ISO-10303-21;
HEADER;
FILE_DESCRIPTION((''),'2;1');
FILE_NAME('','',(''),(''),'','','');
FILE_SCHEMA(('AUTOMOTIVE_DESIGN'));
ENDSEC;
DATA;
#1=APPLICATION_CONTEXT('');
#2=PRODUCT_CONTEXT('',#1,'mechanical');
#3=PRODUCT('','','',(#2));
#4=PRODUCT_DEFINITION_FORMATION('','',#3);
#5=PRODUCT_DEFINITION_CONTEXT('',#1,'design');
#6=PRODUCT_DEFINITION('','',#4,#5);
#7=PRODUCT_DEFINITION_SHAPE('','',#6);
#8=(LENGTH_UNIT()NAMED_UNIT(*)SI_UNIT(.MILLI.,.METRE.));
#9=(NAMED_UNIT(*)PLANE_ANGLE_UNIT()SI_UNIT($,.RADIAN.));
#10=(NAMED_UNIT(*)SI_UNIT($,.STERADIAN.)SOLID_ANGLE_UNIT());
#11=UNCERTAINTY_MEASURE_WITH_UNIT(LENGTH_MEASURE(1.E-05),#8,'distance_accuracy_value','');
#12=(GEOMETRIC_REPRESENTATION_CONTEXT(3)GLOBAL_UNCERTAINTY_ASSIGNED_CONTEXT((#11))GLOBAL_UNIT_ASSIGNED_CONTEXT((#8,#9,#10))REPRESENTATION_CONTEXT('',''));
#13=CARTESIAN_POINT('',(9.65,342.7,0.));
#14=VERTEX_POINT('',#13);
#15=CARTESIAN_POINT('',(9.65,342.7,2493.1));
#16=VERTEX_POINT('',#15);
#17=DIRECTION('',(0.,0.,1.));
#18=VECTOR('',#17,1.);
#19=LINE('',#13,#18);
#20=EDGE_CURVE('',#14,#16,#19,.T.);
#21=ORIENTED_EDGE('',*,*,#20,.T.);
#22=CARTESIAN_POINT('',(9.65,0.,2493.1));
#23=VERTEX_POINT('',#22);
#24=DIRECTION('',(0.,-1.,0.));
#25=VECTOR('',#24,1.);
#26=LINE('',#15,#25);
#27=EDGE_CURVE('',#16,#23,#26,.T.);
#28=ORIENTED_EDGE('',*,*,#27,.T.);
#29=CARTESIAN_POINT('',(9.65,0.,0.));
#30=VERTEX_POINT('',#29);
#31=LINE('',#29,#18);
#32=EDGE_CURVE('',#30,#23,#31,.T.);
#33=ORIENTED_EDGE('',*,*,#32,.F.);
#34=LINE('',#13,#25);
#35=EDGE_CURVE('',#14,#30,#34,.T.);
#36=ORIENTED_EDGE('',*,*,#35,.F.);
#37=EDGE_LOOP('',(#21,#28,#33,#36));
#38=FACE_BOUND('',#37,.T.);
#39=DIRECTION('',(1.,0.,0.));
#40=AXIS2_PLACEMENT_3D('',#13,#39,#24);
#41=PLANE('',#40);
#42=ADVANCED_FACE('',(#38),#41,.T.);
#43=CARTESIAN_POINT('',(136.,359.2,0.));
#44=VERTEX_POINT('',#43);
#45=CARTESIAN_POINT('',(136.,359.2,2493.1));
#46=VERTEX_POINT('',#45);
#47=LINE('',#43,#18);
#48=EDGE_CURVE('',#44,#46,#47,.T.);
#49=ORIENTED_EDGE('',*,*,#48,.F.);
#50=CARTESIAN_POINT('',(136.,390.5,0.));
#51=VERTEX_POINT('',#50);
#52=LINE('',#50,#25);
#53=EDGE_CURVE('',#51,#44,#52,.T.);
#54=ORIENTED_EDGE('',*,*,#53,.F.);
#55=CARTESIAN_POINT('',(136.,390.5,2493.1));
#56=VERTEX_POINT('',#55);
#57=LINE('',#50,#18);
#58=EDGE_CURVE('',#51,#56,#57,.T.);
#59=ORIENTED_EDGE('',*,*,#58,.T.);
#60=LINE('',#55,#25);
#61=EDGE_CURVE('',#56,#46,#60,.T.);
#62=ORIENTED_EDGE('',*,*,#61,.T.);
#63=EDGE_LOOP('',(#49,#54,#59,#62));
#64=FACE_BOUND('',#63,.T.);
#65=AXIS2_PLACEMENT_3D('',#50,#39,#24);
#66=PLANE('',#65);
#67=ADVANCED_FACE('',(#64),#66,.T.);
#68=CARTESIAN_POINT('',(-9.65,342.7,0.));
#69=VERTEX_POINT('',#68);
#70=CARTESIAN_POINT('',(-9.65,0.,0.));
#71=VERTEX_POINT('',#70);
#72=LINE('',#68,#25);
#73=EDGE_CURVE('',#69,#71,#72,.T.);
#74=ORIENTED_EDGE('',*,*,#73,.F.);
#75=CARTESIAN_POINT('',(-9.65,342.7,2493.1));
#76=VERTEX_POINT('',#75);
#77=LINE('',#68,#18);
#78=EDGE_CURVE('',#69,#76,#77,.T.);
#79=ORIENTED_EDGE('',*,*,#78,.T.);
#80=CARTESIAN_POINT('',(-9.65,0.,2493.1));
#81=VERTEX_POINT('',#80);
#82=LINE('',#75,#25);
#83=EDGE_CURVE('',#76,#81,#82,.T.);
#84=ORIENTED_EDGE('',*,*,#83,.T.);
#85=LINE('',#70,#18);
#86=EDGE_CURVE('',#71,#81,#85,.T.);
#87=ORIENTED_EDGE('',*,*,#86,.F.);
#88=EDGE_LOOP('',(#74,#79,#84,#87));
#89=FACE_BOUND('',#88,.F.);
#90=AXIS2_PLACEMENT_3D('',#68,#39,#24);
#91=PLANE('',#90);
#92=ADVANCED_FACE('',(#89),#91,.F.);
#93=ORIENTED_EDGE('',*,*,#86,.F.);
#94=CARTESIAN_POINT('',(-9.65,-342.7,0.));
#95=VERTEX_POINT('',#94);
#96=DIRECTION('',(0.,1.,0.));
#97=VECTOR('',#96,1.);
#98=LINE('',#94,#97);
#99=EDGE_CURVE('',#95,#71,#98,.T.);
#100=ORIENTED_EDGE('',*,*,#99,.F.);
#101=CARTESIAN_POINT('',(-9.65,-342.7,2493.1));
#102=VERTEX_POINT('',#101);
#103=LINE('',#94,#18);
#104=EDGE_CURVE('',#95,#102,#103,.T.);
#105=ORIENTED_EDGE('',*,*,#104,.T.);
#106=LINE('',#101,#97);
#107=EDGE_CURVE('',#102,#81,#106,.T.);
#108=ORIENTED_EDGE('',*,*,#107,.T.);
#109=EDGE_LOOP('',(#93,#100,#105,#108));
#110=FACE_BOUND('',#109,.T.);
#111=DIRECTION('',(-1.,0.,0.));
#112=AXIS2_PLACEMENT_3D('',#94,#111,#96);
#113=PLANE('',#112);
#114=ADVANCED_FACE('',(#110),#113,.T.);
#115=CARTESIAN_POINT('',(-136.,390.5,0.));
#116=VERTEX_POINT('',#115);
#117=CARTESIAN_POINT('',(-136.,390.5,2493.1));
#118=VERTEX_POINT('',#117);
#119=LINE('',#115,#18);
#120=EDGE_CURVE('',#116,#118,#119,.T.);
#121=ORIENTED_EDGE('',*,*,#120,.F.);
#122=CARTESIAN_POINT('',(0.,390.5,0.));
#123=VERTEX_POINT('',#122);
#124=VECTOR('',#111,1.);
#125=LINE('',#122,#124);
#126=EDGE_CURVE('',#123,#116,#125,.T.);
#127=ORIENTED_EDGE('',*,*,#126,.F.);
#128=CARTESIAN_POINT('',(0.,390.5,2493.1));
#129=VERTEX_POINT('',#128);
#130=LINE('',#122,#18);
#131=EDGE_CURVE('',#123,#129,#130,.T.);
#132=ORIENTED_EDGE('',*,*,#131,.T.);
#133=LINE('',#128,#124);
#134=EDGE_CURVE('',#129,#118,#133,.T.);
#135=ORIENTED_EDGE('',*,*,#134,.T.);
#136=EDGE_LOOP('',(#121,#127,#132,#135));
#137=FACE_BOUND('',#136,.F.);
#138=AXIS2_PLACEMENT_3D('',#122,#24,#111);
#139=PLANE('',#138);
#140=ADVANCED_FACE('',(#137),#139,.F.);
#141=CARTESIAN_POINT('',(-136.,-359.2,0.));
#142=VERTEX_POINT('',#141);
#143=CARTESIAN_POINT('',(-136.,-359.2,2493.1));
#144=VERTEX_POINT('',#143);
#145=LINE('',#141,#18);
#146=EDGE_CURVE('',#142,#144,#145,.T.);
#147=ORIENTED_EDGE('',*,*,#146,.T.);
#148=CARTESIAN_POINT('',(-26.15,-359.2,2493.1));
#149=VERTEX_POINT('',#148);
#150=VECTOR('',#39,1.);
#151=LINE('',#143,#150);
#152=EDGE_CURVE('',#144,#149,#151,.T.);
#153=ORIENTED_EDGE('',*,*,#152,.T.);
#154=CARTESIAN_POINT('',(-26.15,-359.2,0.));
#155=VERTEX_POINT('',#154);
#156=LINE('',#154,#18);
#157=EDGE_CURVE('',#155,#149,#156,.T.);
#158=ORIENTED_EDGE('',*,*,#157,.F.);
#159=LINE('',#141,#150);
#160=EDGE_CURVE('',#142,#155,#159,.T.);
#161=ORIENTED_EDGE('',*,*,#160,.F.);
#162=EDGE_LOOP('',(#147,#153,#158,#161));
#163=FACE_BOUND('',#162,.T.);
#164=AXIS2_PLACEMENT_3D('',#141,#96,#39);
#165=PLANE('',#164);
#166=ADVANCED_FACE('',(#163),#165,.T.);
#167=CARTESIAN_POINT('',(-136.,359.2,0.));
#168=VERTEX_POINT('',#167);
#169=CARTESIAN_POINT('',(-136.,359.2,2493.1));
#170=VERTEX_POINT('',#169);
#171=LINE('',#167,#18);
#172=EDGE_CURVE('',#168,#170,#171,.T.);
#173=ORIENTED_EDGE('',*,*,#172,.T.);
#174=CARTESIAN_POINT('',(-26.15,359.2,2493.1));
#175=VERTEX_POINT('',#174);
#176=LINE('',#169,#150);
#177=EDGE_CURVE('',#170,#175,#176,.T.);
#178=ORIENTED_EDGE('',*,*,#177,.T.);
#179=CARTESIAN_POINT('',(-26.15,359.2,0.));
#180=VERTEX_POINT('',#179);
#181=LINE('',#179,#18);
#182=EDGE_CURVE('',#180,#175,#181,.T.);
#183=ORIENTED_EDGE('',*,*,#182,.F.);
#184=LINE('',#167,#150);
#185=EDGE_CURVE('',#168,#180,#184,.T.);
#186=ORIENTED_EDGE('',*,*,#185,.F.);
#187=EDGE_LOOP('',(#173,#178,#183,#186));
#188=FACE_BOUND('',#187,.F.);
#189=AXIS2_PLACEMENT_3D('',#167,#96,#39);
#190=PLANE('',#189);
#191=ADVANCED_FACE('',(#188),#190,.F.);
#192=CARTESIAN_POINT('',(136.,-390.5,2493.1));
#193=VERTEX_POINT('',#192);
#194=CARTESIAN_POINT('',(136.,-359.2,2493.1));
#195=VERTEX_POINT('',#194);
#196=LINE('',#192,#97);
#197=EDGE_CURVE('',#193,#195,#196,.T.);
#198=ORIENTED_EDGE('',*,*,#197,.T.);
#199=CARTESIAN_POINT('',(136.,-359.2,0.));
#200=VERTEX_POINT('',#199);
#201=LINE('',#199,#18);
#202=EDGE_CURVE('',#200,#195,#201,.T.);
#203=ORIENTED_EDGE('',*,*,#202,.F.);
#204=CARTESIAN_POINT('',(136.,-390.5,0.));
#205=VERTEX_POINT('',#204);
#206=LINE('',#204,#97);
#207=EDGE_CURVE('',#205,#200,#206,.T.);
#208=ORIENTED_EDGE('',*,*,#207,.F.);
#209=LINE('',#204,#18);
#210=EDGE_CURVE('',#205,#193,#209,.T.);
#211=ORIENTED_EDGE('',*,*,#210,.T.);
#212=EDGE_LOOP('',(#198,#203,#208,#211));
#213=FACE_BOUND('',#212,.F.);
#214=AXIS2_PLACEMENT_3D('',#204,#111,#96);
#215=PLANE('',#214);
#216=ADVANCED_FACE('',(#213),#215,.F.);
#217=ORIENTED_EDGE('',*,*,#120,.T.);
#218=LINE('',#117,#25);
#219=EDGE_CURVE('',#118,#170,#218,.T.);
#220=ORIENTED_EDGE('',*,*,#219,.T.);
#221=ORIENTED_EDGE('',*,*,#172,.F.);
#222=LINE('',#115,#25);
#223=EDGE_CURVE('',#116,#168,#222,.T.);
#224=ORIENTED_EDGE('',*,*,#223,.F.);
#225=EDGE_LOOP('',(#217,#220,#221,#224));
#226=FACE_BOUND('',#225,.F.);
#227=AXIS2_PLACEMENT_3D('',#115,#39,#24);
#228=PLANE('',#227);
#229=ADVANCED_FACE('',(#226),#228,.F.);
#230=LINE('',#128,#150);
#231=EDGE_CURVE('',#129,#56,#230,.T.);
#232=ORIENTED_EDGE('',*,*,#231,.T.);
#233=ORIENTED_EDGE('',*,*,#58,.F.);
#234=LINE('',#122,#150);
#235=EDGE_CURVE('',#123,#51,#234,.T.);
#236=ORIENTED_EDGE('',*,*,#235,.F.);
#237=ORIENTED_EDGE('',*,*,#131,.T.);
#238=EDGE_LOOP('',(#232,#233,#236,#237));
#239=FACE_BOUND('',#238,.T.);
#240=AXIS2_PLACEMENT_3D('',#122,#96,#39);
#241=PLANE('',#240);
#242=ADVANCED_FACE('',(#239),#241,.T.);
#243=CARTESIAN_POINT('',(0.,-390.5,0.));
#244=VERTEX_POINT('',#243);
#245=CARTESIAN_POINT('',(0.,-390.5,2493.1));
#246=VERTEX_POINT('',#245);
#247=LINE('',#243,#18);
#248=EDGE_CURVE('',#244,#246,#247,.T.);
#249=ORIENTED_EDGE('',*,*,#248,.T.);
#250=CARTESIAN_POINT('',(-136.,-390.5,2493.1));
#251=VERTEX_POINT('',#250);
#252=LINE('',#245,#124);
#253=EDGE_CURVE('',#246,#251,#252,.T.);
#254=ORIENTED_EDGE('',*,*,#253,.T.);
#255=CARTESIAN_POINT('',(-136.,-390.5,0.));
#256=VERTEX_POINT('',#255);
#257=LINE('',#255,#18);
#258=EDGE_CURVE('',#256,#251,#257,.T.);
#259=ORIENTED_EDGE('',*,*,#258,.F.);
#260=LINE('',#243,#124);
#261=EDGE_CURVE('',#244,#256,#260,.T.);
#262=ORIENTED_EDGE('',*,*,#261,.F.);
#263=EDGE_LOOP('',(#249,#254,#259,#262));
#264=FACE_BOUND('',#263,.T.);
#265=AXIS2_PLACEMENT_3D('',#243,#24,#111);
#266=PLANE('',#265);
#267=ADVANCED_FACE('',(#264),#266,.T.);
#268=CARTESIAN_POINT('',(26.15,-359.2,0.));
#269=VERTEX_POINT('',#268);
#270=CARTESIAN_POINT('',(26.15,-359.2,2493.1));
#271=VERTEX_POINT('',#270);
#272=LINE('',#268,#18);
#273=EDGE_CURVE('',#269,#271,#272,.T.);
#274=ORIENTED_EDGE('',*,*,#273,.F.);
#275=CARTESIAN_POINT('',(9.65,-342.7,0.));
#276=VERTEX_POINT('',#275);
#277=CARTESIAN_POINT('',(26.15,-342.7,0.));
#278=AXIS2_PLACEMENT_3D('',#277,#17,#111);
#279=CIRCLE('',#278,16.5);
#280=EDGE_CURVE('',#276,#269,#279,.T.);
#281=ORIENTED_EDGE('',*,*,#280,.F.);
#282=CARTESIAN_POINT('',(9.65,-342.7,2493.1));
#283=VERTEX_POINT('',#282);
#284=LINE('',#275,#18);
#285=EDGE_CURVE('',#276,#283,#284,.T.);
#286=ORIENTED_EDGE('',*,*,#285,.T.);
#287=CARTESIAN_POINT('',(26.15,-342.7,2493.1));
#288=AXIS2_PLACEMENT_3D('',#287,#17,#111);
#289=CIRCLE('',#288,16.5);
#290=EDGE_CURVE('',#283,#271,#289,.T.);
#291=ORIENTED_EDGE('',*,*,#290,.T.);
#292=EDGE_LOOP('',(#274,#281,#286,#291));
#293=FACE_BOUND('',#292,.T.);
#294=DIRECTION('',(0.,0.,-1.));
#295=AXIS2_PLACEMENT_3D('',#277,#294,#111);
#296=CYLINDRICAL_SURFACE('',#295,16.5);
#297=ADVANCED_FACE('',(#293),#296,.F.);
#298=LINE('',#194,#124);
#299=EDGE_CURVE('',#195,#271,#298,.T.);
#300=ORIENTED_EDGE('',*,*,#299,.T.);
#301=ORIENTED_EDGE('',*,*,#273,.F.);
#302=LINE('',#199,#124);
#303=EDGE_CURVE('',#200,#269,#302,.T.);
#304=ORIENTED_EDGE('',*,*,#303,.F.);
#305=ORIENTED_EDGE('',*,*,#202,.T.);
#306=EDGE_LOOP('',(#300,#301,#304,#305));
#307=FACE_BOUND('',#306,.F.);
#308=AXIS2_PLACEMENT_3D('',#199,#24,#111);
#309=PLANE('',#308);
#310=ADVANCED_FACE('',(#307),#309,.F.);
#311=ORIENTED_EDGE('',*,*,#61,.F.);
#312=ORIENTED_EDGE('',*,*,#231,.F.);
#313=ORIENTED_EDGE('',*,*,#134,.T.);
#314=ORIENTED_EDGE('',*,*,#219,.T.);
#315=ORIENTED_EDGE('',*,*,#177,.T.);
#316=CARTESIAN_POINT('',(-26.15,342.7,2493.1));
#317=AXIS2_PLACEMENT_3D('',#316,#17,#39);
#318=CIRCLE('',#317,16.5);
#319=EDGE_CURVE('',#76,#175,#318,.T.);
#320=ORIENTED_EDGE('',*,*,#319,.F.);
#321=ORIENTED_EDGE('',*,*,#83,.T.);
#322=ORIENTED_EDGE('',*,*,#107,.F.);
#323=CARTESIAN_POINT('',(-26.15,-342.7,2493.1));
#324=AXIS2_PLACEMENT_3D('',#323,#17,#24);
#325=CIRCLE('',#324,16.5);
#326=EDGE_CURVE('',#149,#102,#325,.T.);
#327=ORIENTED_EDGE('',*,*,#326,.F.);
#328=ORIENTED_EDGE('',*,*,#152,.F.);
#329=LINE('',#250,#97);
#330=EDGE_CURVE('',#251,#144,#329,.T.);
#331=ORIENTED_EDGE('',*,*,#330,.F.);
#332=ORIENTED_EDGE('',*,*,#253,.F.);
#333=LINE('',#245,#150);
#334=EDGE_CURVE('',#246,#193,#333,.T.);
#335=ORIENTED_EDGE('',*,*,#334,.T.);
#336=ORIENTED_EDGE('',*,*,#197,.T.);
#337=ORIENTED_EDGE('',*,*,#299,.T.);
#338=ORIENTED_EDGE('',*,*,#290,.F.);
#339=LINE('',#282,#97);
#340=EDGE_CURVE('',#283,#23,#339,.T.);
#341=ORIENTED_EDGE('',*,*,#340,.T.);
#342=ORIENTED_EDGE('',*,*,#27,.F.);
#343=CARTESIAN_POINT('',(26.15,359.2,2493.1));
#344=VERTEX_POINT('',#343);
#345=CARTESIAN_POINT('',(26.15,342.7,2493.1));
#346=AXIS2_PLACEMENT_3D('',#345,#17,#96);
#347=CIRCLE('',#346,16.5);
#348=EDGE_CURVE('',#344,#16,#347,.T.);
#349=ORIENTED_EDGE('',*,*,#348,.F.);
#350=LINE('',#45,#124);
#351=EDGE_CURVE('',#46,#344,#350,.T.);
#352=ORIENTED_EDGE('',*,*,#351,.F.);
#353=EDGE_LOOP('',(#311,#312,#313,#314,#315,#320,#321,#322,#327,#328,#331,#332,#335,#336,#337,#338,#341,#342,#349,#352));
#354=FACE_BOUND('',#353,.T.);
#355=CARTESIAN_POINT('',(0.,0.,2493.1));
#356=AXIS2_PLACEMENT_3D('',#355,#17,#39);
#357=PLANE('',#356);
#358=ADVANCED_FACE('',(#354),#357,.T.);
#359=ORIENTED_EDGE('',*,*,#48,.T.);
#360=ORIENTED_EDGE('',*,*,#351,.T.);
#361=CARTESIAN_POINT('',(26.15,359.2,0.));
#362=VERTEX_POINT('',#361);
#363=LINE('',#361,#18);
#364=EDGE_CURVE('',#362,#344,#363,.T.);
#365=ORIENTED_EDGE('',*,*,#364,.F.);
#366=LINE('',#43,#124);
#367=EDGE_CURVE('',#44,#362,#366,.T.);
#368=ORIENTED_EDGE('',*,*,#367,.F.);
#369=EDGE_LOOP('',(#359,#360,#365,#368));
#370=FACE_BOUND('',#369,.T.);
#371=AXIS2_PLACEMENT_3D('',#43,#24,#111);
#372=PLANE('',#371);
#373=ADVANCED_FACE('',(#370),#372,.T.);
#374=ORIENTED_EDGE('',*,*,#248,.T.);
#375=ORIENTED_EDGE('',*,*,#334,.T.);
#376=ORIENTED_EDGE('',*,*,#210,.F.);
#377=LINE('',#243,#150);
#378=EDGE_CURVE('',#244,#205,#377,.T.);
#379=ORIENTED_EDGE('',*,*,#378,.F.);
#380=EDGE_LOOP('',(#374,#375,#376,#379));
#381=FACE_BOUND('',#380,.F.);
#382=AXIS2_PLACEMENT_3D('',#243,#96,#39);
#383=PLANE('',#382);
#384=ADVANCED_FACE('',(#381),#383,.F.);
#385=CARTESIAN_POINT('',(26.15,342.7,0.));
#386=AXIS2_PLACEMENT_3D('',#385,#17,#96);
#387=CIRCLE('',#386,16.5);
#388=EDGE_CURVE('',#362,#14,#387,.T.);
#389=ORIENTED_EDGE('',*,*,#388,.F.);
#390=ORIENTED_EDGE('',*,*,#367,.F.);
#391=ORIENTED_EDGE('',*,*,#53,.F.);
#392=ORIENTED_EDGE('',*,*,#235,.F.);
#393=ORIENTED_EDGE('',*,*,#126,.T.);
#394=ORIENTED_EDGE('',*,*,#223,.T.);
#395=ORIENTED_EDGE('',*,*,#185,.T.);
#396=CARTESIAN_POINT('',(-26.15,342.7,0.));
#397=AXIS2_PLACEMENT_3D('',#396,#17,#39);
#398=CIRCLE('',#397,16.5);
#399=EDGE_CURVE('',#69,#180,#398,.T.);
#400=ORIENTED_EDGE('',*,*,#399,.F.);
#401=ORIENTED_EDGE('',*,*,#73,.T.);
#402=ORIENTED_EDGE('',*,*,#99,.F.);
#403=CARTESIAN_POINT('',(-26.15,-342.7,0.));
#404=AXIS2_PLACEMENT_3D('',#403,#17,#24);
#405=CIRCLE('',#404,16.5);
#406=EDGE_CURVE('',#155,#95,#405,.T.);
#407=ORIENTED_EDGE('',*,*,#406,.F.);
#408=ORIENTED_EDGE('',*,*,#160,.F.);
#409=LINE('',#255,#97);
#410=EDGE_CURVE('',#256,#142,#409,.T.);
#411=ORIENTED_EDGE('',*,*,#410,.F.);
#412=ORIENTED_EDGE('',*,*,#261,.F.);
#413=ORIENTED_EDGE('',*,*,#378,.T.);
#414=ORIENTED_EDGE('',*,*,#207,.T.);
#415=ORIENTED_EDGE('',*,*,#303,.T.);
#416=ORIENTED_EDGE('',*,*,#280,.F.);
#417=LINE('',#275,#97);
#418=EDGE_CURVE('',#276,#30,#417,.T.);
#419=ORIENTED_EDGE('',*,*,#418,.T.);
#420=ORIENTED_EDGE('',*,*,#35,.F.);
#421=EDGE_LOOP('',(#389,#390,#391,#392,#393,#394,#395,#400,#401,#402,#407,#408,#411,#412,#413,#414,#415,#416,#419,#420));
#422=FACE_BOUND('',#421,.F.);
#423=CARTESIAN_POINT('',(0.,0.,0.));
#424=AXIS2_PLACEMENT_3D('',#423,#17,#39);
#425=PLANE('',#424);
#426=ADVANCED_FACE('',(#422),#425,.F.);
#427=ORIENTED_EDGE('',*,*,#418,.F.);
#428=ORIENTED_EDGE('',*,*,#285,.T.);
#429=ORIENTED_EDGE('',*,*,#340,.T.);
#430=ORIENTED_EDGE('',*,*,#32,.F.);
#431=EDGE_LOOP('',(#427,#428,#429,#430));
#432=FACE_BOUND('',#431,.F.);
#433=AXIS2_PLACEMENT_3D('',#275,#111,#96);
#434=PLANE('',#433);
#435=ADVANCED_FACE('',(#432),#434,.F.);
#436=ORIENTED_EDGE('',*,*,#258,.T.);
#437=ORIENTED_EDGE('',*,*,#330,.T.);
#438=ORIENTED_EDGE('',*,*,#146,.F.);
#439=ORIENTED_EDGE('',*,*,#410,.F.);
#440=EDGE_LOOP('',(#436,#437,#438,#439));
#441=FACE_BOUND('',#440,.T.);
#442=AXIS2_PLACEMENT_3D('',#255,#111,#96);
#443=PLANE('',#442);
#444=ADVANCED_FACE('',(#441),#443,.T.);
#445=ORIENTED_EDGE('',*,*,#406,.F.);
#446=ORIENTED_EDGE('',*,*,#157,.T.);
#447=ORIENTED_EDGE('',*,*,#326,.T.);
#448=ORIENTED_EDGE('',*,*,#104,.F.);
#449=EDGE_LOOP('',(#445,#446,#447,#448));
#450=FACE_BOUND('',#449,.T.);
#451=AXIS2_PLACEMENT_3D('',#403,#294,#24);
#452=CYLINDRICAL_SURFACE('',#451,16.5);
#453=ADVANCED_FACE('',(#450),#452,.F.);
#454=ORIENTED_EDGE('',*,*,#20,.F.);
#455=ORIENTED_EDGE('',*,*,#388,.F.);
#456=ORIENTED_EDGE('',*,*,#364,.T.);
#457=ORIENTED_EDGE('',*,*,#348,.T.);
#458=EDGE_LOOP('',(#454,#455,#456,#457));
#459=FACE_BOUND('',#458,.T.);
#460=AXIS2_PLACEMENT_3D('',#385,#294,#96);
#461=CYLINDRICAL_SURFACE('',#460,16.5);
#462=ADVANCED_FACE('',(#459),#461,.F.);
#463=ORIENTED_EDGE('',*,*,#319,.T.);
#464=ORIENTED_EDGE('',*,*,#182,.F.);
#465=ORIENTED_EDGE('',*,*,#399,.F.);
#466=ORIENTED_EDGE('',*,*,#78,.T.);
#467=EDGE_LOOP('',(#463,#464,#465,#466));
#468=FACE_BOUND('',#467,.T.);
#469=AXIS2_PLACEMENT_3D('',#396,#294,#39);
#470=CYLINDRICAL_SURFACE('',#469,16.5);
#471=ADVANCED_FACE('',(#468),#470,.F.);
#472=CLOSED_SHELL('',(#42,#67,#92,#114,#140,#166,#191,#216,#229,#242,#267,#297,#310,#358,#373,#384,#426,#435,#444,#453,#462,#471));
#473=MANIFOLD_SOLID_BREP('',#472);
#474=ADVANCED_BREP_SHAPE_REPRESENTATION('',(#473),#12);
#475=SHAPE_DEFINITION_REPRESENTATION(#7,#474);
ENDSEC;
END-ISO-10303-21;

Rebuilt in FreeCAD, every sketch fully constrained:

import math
import FreeCAD as App
import Part
import Sketcher
from FreeCAD import Vector
Q = App.Units.Quantity

doc = App.newDocument("Part")
body = doc.addObject("PartDesign::Body", "Body")

# Sketch on XY plane
sketch1 = body.newObject("Sketcher::SketchObject", "Sketch")
sketch1.AttachmentSupport = (doc.getObject("XY_Plane"), [""])
sketch1.MapMode = "FlatFace"
sketch1.addGeometry([
    Part.LineSegment(Vector(-136, -359, 0), Vector(-136, -390, 0)),  # 0
    Part.LineSegment(Vector(-136, -390, 0), Vector(136, -390, 0)),  # 1
    Part.LineSegment(Vector(136, -390, 0), Vector(136, -359, 0)),  # 2
    Part.LineSegment(Vector(136, -359, 0), Vector(26, -359, 0)),  # 3
    Part.ArcOfCircle(Part.Circle(Vector(26, -343, 0), Vector(0, 0, 1), 16), math.radians(180), math.radians(270)),  # 4
    Part.LineSegment(Vector(10, -343, 0), Vector(10, 343, 0)),  # 5
    Part.ArcOfCircle(Part.Circle(Vector(26, 343, 0), Vector(0, 0, 1), 16), math.radians(90), math.radians(180)),  # 6
    Part.LineSegment(Vector(26, 359, 0), Vector(136, 359, 0)),  # 7
    Part.LineSegment(Vector(136, 359, 0), Vector(136, 390, 0)),  # 8
    Part.LineSegment(Vector(136, 390, 0), Vector(-136, 390, 0)),  # 9
    Part.LineSegment(Vector(-136, 390, 0), Vector(-136, 359, 0)),  # 10
    Part.LineSegment(Vector(-136, 359, 0), Vector(-26, 359, 0)),  # 11
    Part.ArcOfCircle(Part.Circle(Vector(-26, 343, 0), Vector(0, 0, 1), 16), math.radians(0), math.radians(90)),  # 12
    Part.LineSegment(Vector(-10, 343, 0), Vector(-10, -343, 0)),  # 13
    Part.ArcOfCircle(Part.Circle(Vector(-26, -343, 0), Vector(0, 0, 1), 16), math.radians(-90), math.radians(0)),  # 14
    Part.LineSegment(Vector(-26, -359, 0), Vector(-136, -359, 0)),  # 15
], False)
sketch1.addConstraint([
    Sketcher.Constraint("Coincident", 0, 2, 1, 1),
    Sketcher.Constraint("Coincident", 1, 2, 2, 1),
    Sketcher.Constraint("Coincident", 2, 2, 3, 1),
    Sketcher.Constraint("Tangent", 3, 2, 4, 2),
    Sketcher.Constraint("Tangent", 4, 1, 5, 1),
    Sketcher.Constraint("Tangent", 5, 2, 6, 2),
    Sketcher.Constraint("Tangent", 6, 1, 7, 1),
    Sketcher.Constraint("Coincident", 7, 2, 8, 1),
    Sketcher.Constraint("Coincident", 8, 2, 9, 1),
    Sketcher.Constraint("Coincident", 9, 2, 10, 1),
    Sketcher.Constraint("Coincident", 10, 2, 11, 1),
    Sketcher.Constraint("Tangent", 11, 2, 12, 2),
    Sketcher.Constraint("Tangent", 12, 1, 13, 1),
    Sketcher.Constraint("Tangent", 13, 2, 14, 2),
    Sketcher.Constraint("Tangent", 14, 1, 15, 1),
    Sketcher.Constraint("Coincident", 15, 2, 0, 1),
    Sketcher.Constraint("Vertical", 0),
    Sketcher.Constraint("Horizontal", 1),
    Sketcher.Constraint("Vertical", 2),
    Sketcher.Constraint("Horizontal", 3),
    Sketcher.Constraint("Vertical", 5),
    Sketcher.Constraint("Horizontal", 7),
    Sketcher.Constraint("Vertical", 8),
    Sketcher.Constraint("Horizontal", 9),
    Sketcher.Constraint("Vertical", 10),
    Sketcher.Constraint("Horizontal", 11),
    Sketcher.Constraint("Vertical", 13),
    Sketcher.Constraint("Horizontal", 15),
    Sketcher.Constraint("Equal", 4, 6),
    Sketcher.Constraint("Equal", 6, 12),
    Sketcher.Constraint("Equal", 12, 14),
    Sketcher.Constraint("Symmetric", 4, 3, 12, 3, -1, 1),
    Sketcher.Constraint("Symmetric", 0, 2, 8, 2, -1, 1),
    Sketcher.Constraint("Symmetric", 7, 2, 10, 2, -2),
    Sketcher.Constraint("Symmetric", 2, 2, 15, 2, -2),
    Sketcher.Constraint("Radius", 4, Q("16.5 mm")),
    Sketcher.Constraint("DistanceY", 0, 2, 0, 1, Q("31.3 mm")),
    Sketcher.Constraint("DistanceX", 0, 2, -1, 1, Q("136 mm")),
    Sketcher.Constraint("DistanceY", 0, 2, -1, 1, Q("390.5 mm")),
    Sketcher.Constraint("DistanceX", -1, 1, 4, 1, Q("9.65 mm")),
])
pad1 = body.newObject("PartDesign::Pad", "Pad")
pad1.Profile = sketch1
pad1.Length = 2493.1

doc.recompute()
